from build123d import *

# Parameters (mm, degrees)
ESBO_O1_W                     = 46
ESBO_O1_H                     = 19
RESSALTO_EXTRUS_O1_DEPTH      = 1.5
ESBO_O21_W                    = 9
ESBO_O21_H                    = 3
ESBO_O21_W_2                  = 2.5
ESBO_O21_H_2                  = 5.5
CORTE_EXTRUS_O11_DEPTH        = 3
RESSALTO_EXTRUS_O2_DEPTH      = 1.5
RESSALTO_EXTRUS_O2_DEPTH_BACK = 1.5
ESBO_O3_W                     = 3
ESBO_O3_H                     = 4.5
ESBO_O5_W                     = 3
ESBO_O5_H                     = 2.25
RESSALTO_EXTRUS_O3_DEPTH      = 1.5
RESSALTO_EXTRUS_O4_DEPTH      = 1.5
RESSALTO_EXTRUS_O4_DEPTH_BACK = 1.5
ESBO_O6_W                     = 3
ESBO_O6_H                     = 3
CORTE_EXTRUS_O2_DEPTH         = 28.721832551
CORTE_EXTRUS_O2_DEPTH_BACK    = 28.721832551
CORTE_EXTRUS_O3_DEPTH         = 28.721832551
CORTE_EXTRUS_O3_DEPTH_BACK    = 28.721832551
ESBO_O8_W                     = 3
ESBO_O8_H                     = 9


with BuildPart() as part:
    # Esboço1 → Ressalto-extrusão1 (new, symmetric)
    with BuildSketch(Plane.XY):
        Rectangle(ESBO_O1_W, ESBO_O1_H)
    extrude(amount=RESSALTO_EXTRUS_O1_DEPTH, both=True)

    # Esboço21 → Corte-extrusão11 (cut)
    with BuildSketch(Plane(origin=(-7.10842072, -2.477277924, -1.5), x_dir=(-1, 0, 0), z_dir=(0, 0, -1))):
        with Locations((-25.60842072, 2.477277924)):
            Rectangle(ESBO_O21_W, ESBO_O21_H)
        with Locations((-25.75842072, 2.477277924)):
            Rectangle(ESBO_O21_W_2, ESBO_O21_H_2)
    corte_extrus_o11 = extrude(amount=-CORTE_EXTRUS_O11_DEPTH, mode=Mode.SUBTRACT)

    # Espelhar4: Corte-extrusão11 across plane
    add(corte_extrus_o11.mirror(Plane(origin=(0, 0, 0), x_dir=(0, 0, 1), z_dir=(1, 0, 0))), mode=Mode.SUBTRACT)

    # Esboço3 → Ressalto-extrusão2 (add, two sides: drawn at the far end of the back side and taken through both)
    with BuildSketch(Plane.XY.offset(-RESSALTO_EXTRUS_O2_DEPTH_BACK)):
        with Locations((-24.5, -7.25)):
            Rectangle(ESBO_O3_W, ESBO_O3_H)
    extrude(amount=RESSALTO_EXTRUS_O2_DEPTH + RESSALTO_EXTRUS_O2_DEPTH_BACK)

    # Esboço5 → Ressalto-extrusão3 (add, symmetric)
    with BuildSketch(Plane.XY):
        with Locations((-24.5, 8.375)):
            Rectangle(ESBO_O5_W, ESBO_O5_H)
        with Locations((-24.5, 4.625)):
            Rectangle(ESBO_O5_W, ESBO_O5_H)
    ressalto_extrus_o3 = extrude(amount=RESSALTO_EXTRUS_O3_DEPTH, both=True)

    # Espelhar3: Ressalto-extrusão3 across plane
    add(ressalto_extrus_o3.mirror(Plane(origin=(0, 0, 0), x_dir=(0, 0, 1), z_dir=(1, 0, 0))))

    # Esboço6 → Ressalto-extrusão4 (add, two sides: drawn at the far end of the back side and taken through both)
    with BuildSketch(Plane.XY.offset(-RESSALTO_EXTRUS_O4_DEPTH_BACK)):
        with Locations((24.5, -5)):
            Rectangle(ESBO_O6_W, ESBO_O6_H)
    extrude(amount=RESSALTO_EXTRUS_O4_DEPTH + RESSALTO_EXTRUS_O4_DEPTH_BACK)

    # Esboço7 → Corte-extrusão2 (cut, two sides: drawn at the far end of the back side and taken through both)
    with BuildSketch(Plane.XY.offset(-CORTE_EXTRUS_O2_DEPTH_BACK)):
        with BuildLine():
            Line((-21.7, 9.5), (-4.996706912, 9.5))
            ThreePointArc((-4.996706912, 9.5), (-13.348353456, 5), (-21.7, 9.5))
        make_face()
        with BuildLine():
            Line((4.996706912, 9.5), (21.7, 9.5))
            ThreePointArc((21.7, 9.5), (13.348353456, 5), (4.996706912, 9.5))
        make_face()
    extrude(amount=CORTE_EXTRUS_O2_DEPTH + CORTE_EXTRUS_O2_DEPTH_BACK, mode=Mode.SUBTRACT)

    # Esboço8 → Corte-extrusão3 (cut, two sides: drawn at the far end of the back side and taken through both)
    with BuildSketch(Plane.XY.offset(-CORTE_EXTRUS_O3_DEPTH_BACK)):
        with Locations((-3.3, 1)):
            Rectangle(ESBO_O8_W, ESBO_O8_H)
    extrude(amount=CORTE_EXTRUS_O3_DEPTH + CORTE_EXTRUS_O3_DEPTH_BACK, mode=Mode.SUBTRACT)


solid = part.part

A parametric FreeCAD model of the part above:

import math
import FreeCAD as App
import Part
import Sketcher
from FreeCAD import Vector

doc = App.newDocument("Part")
body = doc.addObject("PartDesign::Body", "Body")

# Sketch on XY plane
sketch1 = body.newObject("Sketcher::SketchObject", "Sketch")
sketch1.AttachmentSupport = (doc.getObject("XY_Plane"), [""])
sketch1.MapMode = "FlatFace"
sketch1.addGeometry([
    Part.LineSegment(Vector(-23, 9.5, 0), Vector(-23, -9.5, 0)),
    Part.LineSegment(Vector(-23, -9.5, 0), Vector(23, -9.5, 0)),
    Part.LineSegment(Vector(23, -9.5, 0), Vector(23, 9.5, 0)),
    Part.LineSegment(Vector(23, 9.5, 0), Vector(-23, 9.5, 0)),
], False)
sketch1.addConstraint([
    Sketcher.Constraint("Coincident", 0, 2, 1, 1),
    Sketcher.Constraint("Coincident", 1, 2, 2, 1),
    Sketcher.Constraint("Coincident", 2, 2, 3, 1),
    Sketcher.Constraint("Coincident", 3, 2, 0, 1),
    Sketcher.Constraint("Vertical", 0),
    Sketcher.Constraint("Horizontal", 1),
    Sketcher.Constraint("Vertical", 2),
    Sketcher.Constraint("Horizontal", 3),
    Sketcher.Constraint("Symmetric", 0, 2, 2, 2, -1, 1),
    Sketcher.Constraint("DistanceX", 1, 1, 1, 2, 46.0),
    Sketcher.Constraint("DistanceY", 0, 2, 0, 1, 19.0),
])
pad1 = body.newObject("PartDesign::Pad", "Pad")
pad1.Profile = sketch1
pad1.Length = 3
pad1.Midplane = True

# Sketch on XY plane
sketch2 = body.newObject("Sketcher::SketchObject", "Sketch001")
sketch2.AttachmentSupport = (doc.getObject("XY_Plane"), [""])
sketch2.MapMode = "FlatFace"
sketch2.AttachmentOffset = App.Placement(Vector(0, 0, -1.5), App.Rotation())
sketch2.addGeometry([
    Part.LineSegment(Vector(23, 1.5, 0), Vector(23, -1.5, 0)),  # 0
    Part.LineSegment(Vector(23, -1.5, 0), Vector(19.9, -1.5, 0)),  # 1
    Part.LineSegment(Vector(19.9, -1.5, 0), Vector(19.9, -2.75, 0)),  # 2
    Part.LineSegment(Vector(19.9, -2.75, 0), Vector(17.4, -2.75, 0)),  # 3
    Part.LineSegment(Vector(17.4, -2.75, 0), Vector(17.4, -1.5, 0)),  # 4
    Part.LineSegment(Vector(17.4, -1.5, 0), Vector(14, -1.5, 0)),  # 5
    Part.LineSegment(Vector(14, -1.5, 0), Vector(14, 1.5, 0)),  # 6
    Part.LineSegment(Vector(14, 1.5, 0), Vector(17.4, 1.5, 0)),  # 7
    Part.LineSegment(Vector(17.4, 1.5, 0), Vector(17.4, 2.75, 0)),  # 8
    Part.LineSegment(Vector(17.4, 2.75, 0), Vector(19.9, 2.75, 0)),  # 9
    Part.LineSegment(Vector(19.9, 2.75, 0), Vector(19.9, 1.5, 0)),  # 10
    Part.LineSegment(Vector(19.9, 1.5, 0), Vector(23, 1.5, 0)),  # 11
], False)
sketch2.addConstraint([
    Sketcher.Constraint("Coincident", 0, 2, 1, 1),
    Sketcher.Constraint("Coincident", 1, 2, 2, 1),
    Sketcher.Constraint("Coincident", 2, 2, 3, 1),
    Sketcher.Constraint("Coincident", 3, 2, 4, 1),
    Sketcher.Constraint("Coincident", 4, 2, 5, 1),
    Sketcher.Constraint("Coincident", 5, 2, 6, 1),
    Sketcher.Constraint("Coincident", 6, 2, 7, 1),
    Sketcher.Constraint("Coincident", 7, 2, 8, 1),
    Sketcher.Constraint("Coincident", 8, 2, 9, 1),
    Sketcher.Constraint("Coincident", 9, 2, 10, 1),
    Sketcher.Constraint("Coincident", 10, 2, 11, 1),
    Sketcher.Constraint("Coincident", 11, 2, 0, 1),
    Sketcher.Constraint("Vertical", 0),
    Sketcher.Constraint("Horizontal", 1),
    Sketcher.Constraint("Vertical", 2),
    Sketcher.Constraint("Horizontal", 3),
    Sketcher.Constraint("Vertical", 4),
    Sketcher.Constraint("Horizontal", 5),
    Sketcher.Constraint("Vertical", 6),
    Sketcher.Constraint("Horizontal", 7),
    Sketcher.Constraint("Vertical", 8),
    Sketcher.Constraint("Horizontal", 9),
    Sketcher.Constraint("Vertical", 10),
    Sketcher.Constraint("Horizontal", 11),
    Sketcher.Constraint("Symmetric", 4, 2, 7, 2, -1),
    Sketcher.Constraint("Symmetric", 2, 2, 9, 2, -1),
    Sketcher.Constraint("Horizontal", 1, 2, 4, 2),
    Sketcher.Constraint("Horizontal", 7, 2, 10, 2),
    Sketcher.Constraint("DistanceY", 0, 2, 0, 1, 3.0),
    Sketcher.Constraint("DistanceX", 1, 2, 1, 1, 3.1),
    Sketcher.Constraint("DistanceX", 3, 2, 3, 1, 2.5),
    Sketcher.Constraint("DistanceX", 5, 2, 5, 1, 3.4),
    Sketcher.Constraint("DistanceX", -1, 1, 0, 2, 23.0),
    Sketcher.Constraint("DistanceY", 2, 2, 2, 1, 1.25),
])
pocket1 = body.newObject("PartDesign::Pocket", "Pocket")
pocket1.Profile = sketch2
pocket1.Length = 3
pocket1.Reversed = True
doc.recompute()

mirrored = body.newObject("PartDesign::Mirrored", "Mirrored")
mirrored.Originals = [pocket1]
mirrored.MirrorPlane = (doc.getObject("YZ_Plane"), [""])
body.Tip = mirrored

# Sketch on XY plane
sketch3 = body.newObject("Sketcher::SketchObject", "Sketch002")
sketch3.AttachmentSupport = (doc.getObject("XY_Plane"), [""])
sketch3.MapMode = "FlatFace"
sketch3.addGeometry([
    Part.LineSegment(Vector(-26, -5, 0), Vector(-26, -9.5, 0)),
    Part.LineSegment(Vector(-26, -9.5, 0), Vector(-23, -9.5, 0)),
    Part.LineSegment(Vector(-23, -9.5, 0), Vector(-23, -5, 0)),
    Part.LineSegment(Vector(-23, -5, 0), Vector(-26, -5, 0)),
], False)
sketch3.addConstraint([
    Sketcher.Constraint("Coincident", 0, 2, 1, 1),
    Sketcher.Constraint("Coincident", 1, 2, 2, 1),
    Sketcher.Constraint("Coincident", 2, 2, 3, 1),
    Sketcher.Constraint("Coincident", 3, 2, 0, 1),
    Sketcher.Constraint("Vertical", 0),
    Sketcher.Constraint("Horizontal", 1),
    Sketcher.Constraint("Vertical", 2),
    Sketcher.Constraint("Horizontal", 3),
    Sketcher.Constraint("DistanceX", 1, 1, 1, 2, 3.0),
    Sketcher.Constraint("DistanceY", 0, 2, 0, 1, 4.5),
    Sketcher.Constraint("DistanceX", 0, 2, -1, 1, 26.0),
    Sketcher.Constraint("DistanceY", 2, 2, -1, 1, 5.0),
])
pad2 = body.newObject("PartDesign::Pad", "Pad001")
pad2.Profile = sketch3
pad2.Type = "TwoLengths"
pad2.Length = 1.5
pad2.Length2 = 1.5

# Sketch on XY plane
sketch4 = body.newObject("Sketcher::SketchObject", "Sketch003")
sketch4.AttachmentSupport = (doc.getObject("XY_Plane"), [""])
sketch4.MapMode = "FlatFace"
sketch4.addGeometry([
    Part.LineSegment(Vector(-26, 9.5, 0), Vector(-26, 7.25, 0)),  # 0
    Part.LineSegment(Vector(-26, 7.25, 0), Vector(-23, 7.25, 0)),  # 1
    Part.LineSegment(Vector(-23, 7.25, 0), Vector(-23, 9.5, 0)),  # 2
    Part.LineSegment(Vector(-23, 9.5, 0), Vector(-26, 9.5, 0)),  # 3
    Part.LineSegment(Vector(-26, 5.75, 0), Vector(-26, 3.5, 0)),  # 4
    Part.LineSegment(Vector(-26, 3.5, 0), Vector(-23, 3.5, 0)),  # 5
    Part.LineSegment(Vector(-23, 3.5, 0), Vector(-23, 5.75, 0)),  # 6
    Part.LineSegment(Vector(-23, 5.75, 0), Vector(-26, 5.75, 0)),  # 7
], False)
sketch4.addConstraint([
    Sketcher.Constraint("Coincident", 0, 2, 1, 1),
    Sketcher.Constraint("Coincident", 1, 2, 2, 1),
    Sketcher.Constraint("Coincident", 2, 2, 3, 1),
    Sketcher.Constraint("Coincident", 3, 2, 0, 1),
    Sketcher.Constraint("Coincident", 4, 2, 5, 1),
    Sketcher.Constraint("Coincident", 5, 2, 6, 1),
    Sketcher.Constraint("Coincident", 6, 2, 7, 1),
    Sketcher.Constraint("Coincident", 7, 2, 4, 1),
    Sketcher.Constraint("Vertical", 0),
    Sketcher.Constraint("Horizontal", 1),
    Sketcher.Constraint("Vertical", 2),
    Sketcher.Constraint("Horizontal", 3),
    Sketcher.Constraint("Vertical", 4),
    Sketcher.Constraint("Horizontal", 5),
    Sketcher.Constraint("Vertical", 6),
    Sketcher.Constraint("Horizontal", 7),
    Sketcher.Constraint("Vertical", 3, 2, 4, 2),
    Sketcher.Constraint("Vertical", 2, 2, 5, 2),
    Sketcher.Constraint("Equal", 2, 4),
    Sketcher.Constraint("DistanceX", 1, 1, 1, 2, 3.0),
    Sketcher.Constraint("DistanceX", 0, 2, -1, 1, 26.0),
    Sketcher.Constraint("DistanceY", 4, 2, 3, 2, 6.0),
    Sketcher.Constraint("DistanceY", 0, 2, 0, 1, 2.25),
    Sketcher.Constraint("DistanceY", -1, 1, 2, 2, 9.5),
])
pad3 = body.newObject("PartDesign::Pad", "Pad002")
pad3.Profile = sketch4
pad3.Length = 3
pad3.Midplane = True
doc.recompute()

mirrored2 = body.newObject("PartDesign::Mirrored", "Mirrored001")
mirrored2.Originals = [pad3]
mirrored2.MirrorPlane = (doc.getObject("YZ_Plane"), [""])
body.Tip = mirrored2

# Sketch on XY plane
sketch5 = body.newObject("Sketcher::SketchObject", "Sketch004")
sketch5.AttachmentSupport = (doc.getObject("XY_Plane"), [""])
sketch5.MapMode = "FlatFace"
sketch5.addGeometry([
    Part.LineSegment(Vector(23, -3.5, 0), Vector(23, -6.5, 0)),
    Part.LineSegment(Vector(23, -6.5, 0), Vector(26, -6.5, 0)),
    Part.LineSegment(Vector(26, -6.5, 0), Vector(26, -3.5, 0)),
    Part.LineSegment(Vector(26, -3.5, 0), Vector(23, -3.5, 0)),
], False)
sketch5.addConstraint([
    Sketcher.Constraint("Coincident", 0, 2, 1, 1),
    Sketcher.Constraint("Coincident", 1, 2, 2, 1),
    Sketcher.Constraint("Coincident", 2, 2, 3, 1),
    Sketcher.Constraint("Coincident", 3, 2, 0, 1),
    Sketcher.Constraint("Vertical", 0),
    Sketcher.Constraint("Horizontal", 1),
    Sketcher.Constraint("Vertical", 2),
    Sketcher.Constraint("Horizontal", 3),
    Sketcher.Constraint("Equal", 3, 0),
    Sketcher.Constraint("DistanceX", 1, 1, 1, 2, 3.0),
    Sketcher.Constraint("DistanceX", -1, 1, 0, 2, 23.0),
    Sketcher.Constraint("DistanceY", 0, 2, -1, 1, 6.5),
])
pad4 = body.newObject("PartDesign::Pad", "Pad003")
pad4.Profile = sketch5
pad4.Type = "TwoLengths"
pad4.Length = 1.5
pad4.Length2 = 1.5

# Sketch on XY plane
sketch6 = body.newObject("Sketcher::SketchObject", "Sketch005")
sketch6.AttachmentSupport = (doc.getObject("XY_Plane"), [""])
sketch6.MapMode = "FlatFace"
sketch6.addGeometry([
    Part.LineSegment(Vector(-4.996707, 9.5, 0), Vector(-21.7, 9.5, 0)),
    Part.ArcOfCircle(Part.Circle(Vector(-13.348353, 15, 0), Vector(0, 0, 1), 10), math.radians(-146.632987), math.radians(-33.367013)),
    Part.LineSegment(Vector(21.7, 9.5, 0), Vector(4.996707, 9.5, 0)),
    Part.ArcOfCircle(Part.Circle(Vector(13.348353, 15, 0), Vector(0, 0, 1), 10), math.radians(-146.632987), math.radians(-33.367013)),
], False)
sketch6.addConstraint([
    Sketcher.Constraint("Coincident", 0, 1, 1, 2),
    Sketcher.Constraint("Coincident", 1, 1, 0, 2),
    Sketcher.Constraint("Coincident", 2, 1, 3, 2),
    Sketcher.Constraint("Coincident", 3, 1, 2, 2),
    Sketcher.Constraint("Horizontal", 0),
    Sketcher.Constraint("Horizontal", 2),
    Sketcher.Constraint("Equal", 1, 3),
    Sketcher.Constraint("Symmetric", 1, 3, 3, 3, -2),
    Sketcher.Constraint("Horizontal", 1, 1, 2, 1),
    Sketcher.Constraint("Radius", 1, 10.0),
    Sketcher.Constraint("DistanceY", -1, 1, 1, 3, 15.0),
    Sketcher.Constraint("DistanceY", -1, 1, 0, 1, 9.5),
    Sketcher.Constraint("DistanceX", 1, 1, -1, 1, 21.7),
])
pocket2 = body.newObject("PartDesign::Pocket", "Pocket001")
pocket2.Profile = sketch6
pocket2.Type = "ThroughAll"
pocket2.Midplane = True

# Sketch on XY plane
sketch7 = body.newObject("Sketcher::SketchObject", "Sketch006")
sketch7.AttachmentSupport = (doc.getObject("XY_Plane"), [""])
sketch7.MapMode = "FlatFace"
sketch7.addGeometry([
    Part.LineSegment(Vector(-4.8, 5.5, 0), Vector(-4.8, -3.5, 0)),
    Part.LineSegment(Vector(-4.8, -3.5, 0), Vector(-1.8, -3.5, 0)),
    Part.LineSegment(Vector(-1.8, -3.5, 0), Vector(-1.8, 5.5, 0)),
    Part.LineSegment(Vector(-1.8, 5.5, 0), Vector(-4.8, 5.5, 0)),
], False)
sketch7.addConstraint([
    Sketcher.Constraint("Coincident", 0, 2, 1, 1),
    Sketcher.Constraint("Coincident", 1, 2, 2, 1),
    Sketcher.Constraint("Coincident", 2, 2, 3, 1),
    Sketcher.Constraint("Coincident", 3, 2, 0, 1),
    Sketcher.Constraint("Vertical", 0),
    Sketcher.Constraint("Horizontal", 1),
    Sketcher.Constraint("Vertical", 2),
    Sketcher.Constraint("Horizontal", 3),
    Sketcher.Constraint("DistanceX", 1, 1, 1, 2, 3.0),
    Sketcher.Constraint("DistanceY", 0, 2, 0, 1, 9.0),
    Sketcher.Constraint("DistanceX", 0, 2, -1, 1, 4.8),
    Sketcher.Constraint("DistanceY", 0, 2, -1, 1, 3.5),
])
pocket3 = body.newObject("PartDesign::Pocket", "Pocket002")
pocket3.Profile = sketch7
pocket3.Type = "ThroughAll"
pocket3.Midplane = True

doc.recompute()
